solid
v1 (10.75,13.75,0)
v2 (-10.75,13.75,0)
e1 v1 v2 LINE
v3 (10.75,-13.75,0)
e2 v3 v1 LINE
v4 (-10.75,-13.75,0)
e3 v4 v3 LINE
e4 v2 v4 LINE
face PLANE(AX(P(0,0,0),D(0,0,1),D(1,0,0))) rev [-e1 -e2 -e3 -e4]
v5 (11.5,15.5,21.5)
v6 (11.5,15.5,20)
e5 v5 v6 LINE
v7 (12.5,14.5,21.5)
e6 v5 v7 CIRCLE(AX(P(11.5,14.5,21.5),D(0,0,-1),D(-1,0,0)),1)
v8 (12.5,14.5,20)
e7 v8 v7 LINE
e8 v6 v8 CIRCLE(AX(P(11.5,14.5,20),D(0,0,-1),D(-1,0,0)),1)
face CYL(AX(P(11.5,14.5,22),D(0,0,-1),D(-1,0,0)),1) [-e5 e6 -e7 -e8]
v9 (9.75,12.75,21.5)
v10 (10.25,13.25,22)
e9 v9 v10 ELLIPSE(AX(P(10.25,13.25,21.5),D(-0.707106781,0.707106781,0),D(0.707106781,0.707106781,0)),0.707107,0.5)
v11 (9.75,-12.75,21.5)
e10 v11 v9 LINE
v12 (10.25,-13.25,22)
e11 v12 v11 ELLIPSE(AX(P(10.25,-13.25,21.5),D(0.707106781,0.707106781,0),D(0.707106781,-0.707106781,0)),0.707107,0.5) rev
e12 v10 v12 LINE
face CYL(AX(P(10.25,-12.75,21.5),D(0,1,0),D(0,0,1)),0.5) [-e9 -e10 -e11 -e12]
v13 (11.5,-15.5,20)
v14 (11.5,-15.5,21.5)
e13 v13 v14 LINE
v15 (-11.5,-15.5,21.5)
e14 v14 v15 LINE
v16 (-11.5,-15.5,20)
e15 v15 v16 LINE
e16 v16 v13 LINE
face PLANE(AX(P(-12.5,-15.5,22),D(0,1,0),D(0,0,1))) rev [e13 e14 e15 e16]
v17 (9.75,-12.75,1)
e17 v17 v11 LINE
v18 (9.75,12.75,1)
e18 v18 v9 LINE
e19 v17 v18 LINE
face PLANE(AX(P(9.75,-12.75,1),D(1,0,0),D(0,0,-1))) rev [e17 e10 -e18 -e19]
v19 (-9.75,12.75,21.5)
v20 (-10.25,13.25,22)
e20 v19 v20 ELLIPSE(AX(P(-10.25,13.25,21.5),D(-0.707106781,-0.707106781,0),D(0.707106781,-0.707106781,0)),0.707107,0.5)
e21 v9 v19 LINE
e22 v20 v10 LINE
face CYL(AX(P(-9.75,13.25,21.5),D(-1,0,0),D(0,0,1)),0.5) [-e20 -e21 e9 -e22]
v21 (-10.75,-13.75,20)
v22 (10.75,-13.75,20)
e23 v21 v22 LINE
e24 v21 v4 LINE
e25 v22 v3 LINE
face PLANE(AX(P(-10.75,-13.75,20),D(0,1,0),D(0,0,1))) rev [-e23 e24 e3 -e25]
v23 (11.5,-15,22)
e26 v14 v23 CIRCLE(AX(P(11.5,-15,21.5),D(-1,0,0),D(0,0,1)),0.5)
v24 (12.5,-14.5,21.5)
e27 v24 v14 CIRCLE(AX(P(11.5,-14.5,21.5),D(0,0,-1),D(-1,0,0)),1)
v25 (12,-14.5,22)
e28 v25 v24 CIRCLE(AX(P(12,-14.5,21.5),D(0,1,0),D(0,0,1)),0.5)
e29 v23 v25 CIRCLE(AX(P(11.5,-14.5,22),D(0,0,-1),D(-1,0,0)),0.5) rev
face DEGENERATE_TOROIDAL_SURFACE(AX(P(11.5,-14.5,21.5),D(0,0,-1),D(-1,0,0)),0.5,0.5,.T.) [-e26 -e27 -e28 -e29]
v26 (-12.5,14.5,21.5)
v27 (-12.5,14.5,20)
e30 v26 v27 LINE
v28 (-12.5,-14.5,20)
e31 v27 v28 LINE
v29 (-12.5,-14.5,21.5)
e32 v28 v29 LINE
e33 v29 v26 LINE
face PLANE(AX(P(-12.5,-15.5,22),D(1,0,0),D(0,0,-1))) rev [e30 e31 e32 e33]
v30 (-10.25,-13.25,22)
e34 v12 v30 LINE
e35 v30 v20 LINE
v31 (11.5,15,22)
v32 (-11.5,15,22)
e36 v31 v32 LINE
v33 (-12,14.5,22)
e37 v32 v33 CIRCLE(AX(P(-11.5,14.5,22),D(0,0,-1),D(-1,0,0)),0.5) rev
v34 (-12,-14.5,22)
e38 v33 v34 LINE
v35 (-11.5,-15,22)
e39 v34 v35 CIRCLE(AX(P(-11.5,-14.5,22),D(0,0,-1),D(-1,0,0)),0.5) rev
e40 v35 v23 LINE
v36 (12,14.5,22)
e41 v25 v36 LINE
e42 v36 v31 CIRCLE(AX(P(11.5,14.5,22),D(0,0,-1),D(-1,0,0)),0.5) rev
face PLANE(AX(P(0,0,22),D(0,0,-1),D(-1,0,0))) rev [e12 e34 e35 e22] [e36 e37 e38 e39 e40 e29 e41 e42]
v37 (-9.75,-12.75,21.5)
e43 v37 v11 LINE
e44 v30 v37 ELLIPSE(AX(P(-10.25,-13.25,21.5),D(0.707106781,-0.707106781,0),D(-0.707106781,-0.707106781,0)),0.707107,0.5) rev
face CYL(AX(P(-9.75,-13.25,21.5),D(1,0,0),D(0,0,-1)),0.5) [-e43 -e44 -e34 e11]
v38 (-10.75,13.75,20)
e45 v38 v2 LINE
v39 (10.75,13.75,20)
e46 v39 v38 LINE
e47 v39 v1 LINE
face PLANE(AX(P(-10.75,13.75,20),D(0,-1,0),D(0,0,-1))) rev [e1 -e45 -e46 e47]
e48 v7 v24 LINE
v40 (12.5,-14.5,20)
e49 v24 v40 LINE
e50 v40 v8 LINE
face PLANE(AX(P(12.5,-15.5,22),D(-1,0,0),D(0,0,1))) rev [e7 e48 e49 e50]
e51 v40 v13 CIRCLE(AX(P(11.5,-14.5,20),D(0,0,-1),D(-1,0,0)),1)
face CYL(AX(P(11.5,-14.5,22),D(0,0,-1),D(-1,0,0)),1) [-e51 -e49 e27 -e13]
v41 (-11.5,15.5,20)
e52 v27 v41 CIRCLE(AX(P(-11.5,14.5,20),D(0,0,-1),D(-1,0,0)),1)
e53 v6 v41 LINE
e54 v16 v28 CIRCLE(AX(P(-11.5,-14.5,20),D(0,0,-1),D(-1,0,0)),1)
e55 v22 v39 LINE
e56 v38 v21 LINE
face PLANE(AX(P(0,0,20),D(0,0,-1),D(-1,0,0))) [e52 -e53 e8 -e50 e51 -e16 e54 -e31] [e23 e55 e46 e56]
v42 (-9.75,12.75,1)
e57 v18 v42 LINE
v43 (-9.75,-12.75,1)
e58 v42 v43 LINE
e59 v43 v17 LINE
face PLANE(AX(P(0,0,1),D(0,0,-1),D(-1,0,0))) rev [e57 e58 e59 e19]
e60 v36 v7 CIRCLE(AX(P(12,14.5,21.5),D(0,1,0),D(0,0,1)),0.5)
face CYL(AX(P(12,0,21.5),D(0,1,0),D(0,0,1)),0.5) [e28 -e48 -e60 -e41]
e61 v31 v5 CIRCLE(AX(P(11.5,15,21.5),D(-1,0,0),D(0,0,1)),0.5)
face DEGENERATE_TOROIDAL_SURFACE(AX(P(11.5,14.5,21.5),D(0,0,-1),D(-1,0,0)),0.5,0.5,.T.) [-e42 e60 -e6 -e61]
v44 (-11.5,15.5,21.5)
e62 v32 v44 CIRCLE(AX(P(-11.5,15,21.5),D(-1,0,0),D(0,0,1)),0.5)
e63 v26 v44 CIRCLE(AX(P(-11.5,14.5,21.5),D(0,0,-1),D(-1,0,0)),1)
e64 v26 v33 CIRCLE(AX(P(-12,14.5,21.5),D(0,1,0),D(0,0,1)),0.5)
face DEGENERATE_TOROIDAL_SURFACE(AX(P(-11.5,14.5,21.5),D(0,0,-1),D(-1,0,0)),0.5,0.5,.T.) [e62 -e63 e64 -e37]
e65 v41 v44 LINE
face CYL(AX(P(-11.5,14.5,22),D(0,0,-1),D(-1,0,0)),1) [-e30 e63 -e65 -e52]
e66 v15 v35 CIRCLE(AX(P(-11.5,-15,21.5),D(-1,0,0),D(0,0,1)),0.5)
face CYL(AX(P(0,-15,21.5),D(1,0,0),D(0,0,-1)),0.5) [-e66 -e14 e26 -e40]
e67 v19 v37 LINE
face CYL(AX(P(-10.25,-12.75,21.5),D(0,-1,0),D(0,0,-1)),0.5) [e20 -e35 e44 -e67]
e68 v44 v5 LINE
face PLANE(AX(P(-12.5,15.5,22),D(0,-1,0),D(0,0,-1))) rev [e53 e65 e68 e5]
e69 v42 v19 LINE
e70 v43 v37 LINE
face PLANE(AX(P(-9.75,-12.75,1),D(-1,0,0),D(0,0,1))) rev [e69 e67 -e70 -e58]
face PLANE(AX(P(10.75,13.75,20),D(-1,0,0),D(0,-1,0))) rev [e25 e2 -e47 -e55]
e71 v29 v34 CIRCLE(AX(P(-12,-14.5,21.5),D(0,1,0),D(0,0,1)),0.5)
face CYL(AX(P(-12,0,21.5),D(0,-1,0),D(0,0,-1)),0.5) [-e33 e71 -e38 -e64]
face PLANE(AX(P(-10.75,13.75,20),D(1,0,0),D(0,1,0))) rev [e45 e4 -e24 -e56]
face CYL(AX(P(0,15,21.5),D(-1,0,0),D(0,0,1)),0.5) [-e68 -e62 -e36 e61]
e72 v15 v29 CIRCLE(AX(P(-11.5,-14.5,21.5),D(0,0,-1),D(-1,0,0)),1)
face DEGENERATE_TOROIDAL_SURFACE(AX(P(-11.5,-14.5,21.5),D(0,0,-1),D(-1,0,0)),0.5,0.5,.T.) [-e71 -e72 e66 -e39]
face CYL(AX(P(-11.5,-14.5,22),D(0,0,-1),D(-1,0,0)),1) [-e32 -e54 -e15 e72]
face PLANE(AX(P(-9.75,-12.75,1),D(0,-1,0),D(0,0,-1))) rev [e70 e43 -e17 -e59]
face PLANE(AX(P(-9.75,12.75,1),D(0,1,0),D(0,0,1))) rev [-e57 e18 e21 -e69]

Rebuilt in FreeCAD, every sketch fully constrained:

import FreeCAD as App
import Part
import Sketcher

V = App.Vector


def edges_at(feature, points):
    """Names of the edges that pass closest to the given points."""
    edges = feature.Shape.Edges
    near = lambda p: min(range(len(edges)), key=lambda i: edges[i].distToShape(Part.Vertex(*p))[0])
    return sorted({f"Edge{near(p) + 1}" for p in points})


def add_polygon(sketch, points):
    """Adds a closed chain of lines whose ends are joined by coincident constraints."""
    first, n = sketch.GeometryCount, len(points)
    for a, b in zip(points, points[1:] + points[:1]):
        sketch.addGeometry(Part.LineSegment(App.Vector(*a, 0), App.Vector(*b, 0)), False)
    for i in range(n):
        sketch.addConstraint(Sketcher.Constraint("Coincident", first + i, 2, first + (i + 1) % n, 1))

doc = App.newDocument("Part")
body = doc.addObject("PartDesign::Body", "Body")

# Sketch on XY plane
sketch1 = body.newObject("Sketcher::SketchObject", "Sketch")
sketch1.AttachmentSupport = (doc.getObject("XY_Plane"), [""])
sketch1.MapMode = "FlatFace"
add_polygon(sketch1, [(-11, 14), (-11, -14), (11, -14), (11, 14)])  # lines 0-3
sketch1.addConstraint([
    Sketcher.Constraint("Vertical", 0),
    Sketcher.Constraint("Horizontal", 1),
    Sketcher.Constraint("Vertical", 2),
    Sketcher.Constraint("Horizontal", 3),
    Sketcher.Constraint("Symmetric", 0, 2, 2, 2, -1, 1),
    Sketcher.Constraint("DistanceX", 1, 1, 1, 2, 21.5),
    Sketcher.Constraint("DistanceY", 0, 2, 0, 1, 27.5),
])
pad1 = body.newObject("PartDesign::Pad", "Pad")
pad1.Profile = sketch1
pad1.Length = 20

# Sketch on XY plane
sketch2 = body.newObject("Sketcher::SketchObject", "Sketch001")
sketch2.AttachmentSupport = (doc.getObject("XY_Plane"), [""])
sketch2.MapMode = "FlatFace"
sketch2.AttachmentOffset = App.Placement(V(0, 0, 20), App.Rotation())
add_polygon(sketch2, [(-12, 16), (-12, -16), (12, -16), (12, 16)])  # lines 0-3
sketch2.addConstraint([
    Sketcher.Constraint("Vertical", 0),
    Sketcher.Constraint("Horizontal", 1),
    Sketcher.Constraint("Vertical", 2),
    Sketcher.Constraint("Horizontal", 3),
    Sketcher.Constraint("Symmetric", 0, 2, 2, 2, -1, 1),
    Sketcher.Constraint("DistanceX", 1, 1, 1, 2, 25.0),
    Sketcher.Constraint("DistanceY", 0, 2, 0, 1, 31.0),
])
pad2 = body.newObject("PartDesign::Pad", "Pad001")
pad2.Profile = sketch2
pad2.Length = 2

# Sketch on XY plane
sketch3 = body.newObject("Sketcher::SketchObject", "Sketch002")
sketch3.AttachmentSupport = (doc.getObject("XY_Plane"), [""])
sketch3.MapMode = "FlatFace"
sketch3.AttachmentOffset = App.Placement(V(0, 0, 22), App.Rotation())
add_polygon(sketch3, [(-10, 13), (-10, -13), (10, -13), (10, 13)])  # lines 0-3
sketch3.addConstraint([
    Sketcher.Constraint("Vertical", 0),
    Sketcher.Constraint("Horizontal", 1),
    Sketcher.Constraint("Vertical", 2),
    Sketcher.Constraint("Horizontal", 3),
    Sketcher.Constraint("Symmetric", 0, 2, 2, 2, -1, 1),
    Sketcher.Constraint("DistanceX", 1, 1, 1, 2, 19.5),
    Sketcher.Constraint("DistanceY", 0, 2, 0, 1, 25.5),
])
pocket1 = body.newObject("PartDesign::Pocket", "Pocket")
pocket1.Profile = sketch3
pocket1.Length = 21
doc.recompute()

fillet = body.newObject("PartDesign::Fillet", "Fillet")
fillet.Base = (pocket1, edges_at(pocket1, [
    (12.5, -15.5, 21),
    (12.5, 15.5, 21),
    (-12.5, 15.5, 21),
    (-12.5, -15.5, 21),
]))
fillet.Radius = 1
doc.recompute()

fillet2 = body.newObject("PartDesign::Fillet", "Fillet001")
fillet2.Base = (fillet, edges_at(fillet, [
    (9.75, 0, 22),
    (0, 12.75, 22),
    (-9.75, 0, 22),
    (0, -12.75, 22),
    (0, -15.5, 22),
    (-12.5, 0, 22),
    (12.5, 0, 22),
    (0, 15.5, 22),
    (12.207, 15.207, 22),
    (-12.207, 15.207, 22),
    (12.207, -15.207, 22),
    (-12.207, -15.207, 22),
]))
fillet2.Radius = 0.5

doc.recompute()
